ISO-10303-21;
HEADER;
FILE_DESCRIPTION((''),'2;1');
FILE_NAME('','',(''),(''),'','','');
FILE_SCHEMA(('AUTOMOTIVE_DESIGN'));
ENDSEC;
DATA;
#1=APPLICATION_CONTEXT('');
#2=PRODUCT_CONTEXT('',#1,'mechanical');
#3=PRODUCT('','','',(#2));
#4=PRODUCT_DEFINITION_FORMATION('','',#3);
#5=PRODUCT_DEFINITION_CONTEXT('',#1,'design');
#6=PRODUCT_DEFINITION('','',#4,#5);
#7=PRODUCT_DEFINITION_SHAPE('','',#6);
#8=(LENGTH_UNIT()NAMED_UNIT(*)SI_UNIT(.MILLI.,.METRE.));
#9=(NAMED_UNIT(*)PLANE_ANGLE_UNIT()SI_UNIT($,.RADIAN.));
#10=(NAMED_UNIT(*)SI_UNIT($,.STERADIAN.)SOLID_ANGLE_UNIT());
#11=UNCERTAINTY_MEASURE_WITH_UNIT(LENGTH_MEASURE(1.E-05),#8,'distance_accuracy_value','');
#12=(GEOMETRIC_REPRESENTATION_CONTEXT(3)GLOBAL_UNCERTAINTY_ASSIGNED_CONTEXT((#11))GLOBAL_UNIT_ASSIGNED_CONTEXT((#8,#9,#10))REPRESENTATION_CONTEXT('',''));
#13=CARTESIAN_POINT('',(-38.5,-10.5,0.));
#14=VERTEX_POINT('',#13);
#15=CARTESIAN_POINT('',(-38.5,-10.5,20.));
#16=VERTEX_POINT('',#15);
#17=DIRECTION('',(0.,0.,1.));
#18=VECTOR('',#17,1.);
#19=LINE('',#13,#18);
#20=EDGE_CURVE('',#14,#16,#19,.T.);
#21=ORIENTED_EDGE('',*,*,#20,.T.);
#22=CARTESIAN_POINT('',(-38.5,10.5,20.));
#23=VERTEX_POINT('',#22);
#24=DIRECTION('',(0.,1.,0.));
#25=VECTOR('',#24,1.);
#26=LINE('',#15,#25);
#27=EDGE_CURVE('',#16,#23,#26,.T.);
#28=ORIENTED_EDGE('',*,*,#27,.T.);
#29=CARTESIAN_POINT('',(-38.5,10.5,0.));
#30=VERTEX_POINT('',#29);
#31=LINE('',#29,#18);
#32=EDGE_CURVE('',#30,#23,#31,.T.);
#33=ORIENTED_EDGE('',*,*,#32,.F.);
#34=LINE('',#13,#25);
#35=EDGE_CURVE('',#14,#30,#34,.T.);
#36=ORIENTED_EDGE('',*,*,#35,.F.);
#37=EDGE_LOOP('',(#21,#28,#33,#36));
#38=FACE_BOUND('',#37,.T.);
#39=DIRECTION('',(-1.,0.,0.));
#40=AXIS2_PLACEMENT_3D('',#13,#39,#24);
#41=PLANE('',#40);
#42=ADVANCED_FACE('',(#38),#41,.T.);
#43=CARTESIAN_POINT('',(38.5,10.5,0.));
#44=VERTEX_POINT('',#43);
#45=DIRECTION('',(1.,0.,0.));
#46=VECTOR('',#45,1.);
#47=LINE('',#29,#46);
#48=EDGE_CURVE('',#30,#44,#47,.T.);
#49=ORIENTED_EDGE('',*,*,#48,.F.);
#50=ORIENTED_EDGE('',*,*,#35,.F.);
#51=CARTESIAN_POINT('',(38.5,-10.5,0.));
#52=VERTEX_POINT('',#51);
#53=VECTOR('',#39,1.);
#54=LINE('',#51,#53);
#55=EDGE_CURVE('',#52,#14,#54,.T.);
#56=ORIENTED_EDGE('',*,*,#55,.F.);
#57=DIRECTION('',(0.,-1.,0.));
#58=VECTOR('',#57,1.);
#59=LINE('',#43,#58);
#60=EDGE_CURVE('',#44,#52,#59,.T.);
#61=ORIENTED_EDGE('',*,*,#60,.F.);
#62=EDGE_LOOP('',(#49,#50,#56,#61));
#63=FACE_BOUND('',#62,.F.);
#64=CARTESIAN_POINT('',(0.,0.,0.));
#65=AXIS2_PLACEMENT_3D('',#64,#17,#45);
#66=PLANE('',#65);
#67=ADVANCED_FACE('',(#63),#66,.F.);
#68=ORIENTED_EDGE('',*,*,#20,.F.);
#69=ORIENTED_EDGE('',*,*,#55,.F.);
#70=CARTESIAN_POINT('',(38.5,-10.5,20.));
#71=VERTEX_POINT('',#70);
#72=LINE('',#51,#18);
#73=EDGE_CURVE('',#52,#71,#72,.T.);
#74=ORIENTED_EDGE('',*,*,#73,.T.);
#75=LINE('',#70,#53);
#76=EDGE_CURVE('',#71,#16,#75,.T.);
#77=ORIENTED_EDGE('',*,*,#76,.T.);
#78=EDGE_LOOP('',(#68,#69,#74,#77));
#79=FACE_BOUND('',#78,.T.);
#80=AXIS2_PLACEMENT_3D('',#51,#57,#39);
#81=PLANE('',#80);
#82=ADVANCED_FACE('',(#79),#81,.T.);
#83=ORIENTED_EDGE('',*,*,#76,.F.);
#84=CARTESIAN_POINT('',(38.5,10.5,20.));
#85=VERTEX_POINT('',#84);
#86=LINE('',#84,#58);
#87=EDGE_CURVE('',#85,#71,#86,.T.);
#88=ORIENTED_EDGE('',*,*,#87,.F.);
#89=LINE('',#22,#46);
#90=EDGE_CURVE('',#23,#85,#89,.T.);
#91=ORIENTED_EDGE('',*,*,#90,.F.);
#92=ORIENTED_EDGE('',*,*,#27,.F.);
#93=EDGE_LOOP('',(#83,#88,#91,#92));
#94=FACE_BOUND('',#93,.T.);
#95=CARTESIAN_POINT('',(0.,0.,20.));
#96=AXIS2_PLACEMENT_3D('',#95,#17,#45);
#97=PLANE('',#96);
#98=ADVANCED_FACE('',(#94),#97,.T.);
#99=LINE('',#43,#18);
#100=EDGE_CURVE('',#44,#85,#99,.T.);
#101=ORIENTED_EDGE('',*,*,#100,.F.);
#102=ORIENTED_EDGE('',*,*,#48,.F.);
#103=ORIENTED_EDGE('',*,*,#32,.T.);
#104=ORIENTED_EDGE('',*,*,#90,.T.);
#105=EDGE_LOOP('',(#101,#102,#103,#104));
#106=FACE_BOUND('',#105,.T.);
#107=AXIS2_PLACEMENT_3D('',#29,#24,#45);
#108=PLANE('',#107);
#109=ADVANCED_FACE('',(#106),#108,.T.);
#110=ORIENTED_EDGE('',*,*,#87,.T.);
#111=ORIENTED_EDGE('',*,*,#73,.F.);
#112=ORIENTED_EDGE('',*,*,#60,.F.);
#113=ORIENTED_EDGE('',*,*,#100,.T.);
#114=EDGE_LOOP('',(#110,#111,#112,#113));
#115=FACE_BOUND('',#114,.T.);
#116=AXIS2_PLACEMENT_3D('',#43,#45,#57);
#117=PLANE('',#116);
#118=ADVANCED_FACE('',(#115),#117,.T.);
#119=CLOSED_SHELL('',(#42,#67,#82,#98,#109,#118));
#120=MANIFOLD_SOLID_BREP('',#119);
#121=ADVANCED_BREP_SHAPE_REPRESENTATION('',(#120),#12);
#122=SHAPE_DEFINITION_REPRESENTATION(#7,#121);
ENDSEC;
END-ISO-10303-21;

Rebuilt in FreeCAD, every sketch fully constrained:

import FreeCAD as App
import Part
import Sketcher
from FreeCAD import Vector

doc = App.newDocument("Part")
body = doc.addObject("PartDesign::Body", "Body")

# Sketch on XY plane
sketch1 = doc.addObject("Sketcher::SketchObject", "Sketch")
body.addObject(sketch1)
sketch1.AttachmentSupport = (doc.XY_Plane, [""])
sketch1.MapMode = "FlatFace"
sketch1.addGeometry([
    Part.LineSegment(Vector(38.5, 10.5, 0), Vector(-38.5, 10.5, 0)),
    Part.LineSegment(Vector(-38.5, 10.5, 0), Vector(-38.5, -10.5, 0)),
    Part.LineSegment(Vector(-38.5, -10.5, 0), Vector(38.5, -10.5, 0)),
    Part.LineSegment(Vector(38.5, -10.5, 0), Vector(38.5, 10.5, 0)),
], False)
sketch1.addConstraint([
    Sketcher.Constraint("Coincident", 0, 2, 1, 1),
    Sketcher.Constraint("Coincident", 1, 2, 2, 1),
    Sketcher.Constraint("Coincident", 2, 2, 3, 1),
    Sketcher.Constraint("Coincident", 3, 2, 0, 1),
    Sketcher.Constraint("Horizontal", 0),
    Sketcher.Constraint("Vertical", 1),
    Sketcher.Constraint("Horizontal", 2),
    Sketcher.Constraint("Vertical", 3),
    Sketcher.Constraint("Symmetric", 0, 2, 2, 2, -1, 1),
    Sketcher.Constraint("DistanceX", 0, 2, 0, 1, 77.0),
    Sketcher.Constraint("DistanceY", 1, 2, 1, 1, 21.0),
])
pad1 = doc.addObject("PartDesign::Pad", "Pad")
body.addObject(pad1)
pad1.Profile = sketch1
pad1.Length = 20

doc.recompute()
